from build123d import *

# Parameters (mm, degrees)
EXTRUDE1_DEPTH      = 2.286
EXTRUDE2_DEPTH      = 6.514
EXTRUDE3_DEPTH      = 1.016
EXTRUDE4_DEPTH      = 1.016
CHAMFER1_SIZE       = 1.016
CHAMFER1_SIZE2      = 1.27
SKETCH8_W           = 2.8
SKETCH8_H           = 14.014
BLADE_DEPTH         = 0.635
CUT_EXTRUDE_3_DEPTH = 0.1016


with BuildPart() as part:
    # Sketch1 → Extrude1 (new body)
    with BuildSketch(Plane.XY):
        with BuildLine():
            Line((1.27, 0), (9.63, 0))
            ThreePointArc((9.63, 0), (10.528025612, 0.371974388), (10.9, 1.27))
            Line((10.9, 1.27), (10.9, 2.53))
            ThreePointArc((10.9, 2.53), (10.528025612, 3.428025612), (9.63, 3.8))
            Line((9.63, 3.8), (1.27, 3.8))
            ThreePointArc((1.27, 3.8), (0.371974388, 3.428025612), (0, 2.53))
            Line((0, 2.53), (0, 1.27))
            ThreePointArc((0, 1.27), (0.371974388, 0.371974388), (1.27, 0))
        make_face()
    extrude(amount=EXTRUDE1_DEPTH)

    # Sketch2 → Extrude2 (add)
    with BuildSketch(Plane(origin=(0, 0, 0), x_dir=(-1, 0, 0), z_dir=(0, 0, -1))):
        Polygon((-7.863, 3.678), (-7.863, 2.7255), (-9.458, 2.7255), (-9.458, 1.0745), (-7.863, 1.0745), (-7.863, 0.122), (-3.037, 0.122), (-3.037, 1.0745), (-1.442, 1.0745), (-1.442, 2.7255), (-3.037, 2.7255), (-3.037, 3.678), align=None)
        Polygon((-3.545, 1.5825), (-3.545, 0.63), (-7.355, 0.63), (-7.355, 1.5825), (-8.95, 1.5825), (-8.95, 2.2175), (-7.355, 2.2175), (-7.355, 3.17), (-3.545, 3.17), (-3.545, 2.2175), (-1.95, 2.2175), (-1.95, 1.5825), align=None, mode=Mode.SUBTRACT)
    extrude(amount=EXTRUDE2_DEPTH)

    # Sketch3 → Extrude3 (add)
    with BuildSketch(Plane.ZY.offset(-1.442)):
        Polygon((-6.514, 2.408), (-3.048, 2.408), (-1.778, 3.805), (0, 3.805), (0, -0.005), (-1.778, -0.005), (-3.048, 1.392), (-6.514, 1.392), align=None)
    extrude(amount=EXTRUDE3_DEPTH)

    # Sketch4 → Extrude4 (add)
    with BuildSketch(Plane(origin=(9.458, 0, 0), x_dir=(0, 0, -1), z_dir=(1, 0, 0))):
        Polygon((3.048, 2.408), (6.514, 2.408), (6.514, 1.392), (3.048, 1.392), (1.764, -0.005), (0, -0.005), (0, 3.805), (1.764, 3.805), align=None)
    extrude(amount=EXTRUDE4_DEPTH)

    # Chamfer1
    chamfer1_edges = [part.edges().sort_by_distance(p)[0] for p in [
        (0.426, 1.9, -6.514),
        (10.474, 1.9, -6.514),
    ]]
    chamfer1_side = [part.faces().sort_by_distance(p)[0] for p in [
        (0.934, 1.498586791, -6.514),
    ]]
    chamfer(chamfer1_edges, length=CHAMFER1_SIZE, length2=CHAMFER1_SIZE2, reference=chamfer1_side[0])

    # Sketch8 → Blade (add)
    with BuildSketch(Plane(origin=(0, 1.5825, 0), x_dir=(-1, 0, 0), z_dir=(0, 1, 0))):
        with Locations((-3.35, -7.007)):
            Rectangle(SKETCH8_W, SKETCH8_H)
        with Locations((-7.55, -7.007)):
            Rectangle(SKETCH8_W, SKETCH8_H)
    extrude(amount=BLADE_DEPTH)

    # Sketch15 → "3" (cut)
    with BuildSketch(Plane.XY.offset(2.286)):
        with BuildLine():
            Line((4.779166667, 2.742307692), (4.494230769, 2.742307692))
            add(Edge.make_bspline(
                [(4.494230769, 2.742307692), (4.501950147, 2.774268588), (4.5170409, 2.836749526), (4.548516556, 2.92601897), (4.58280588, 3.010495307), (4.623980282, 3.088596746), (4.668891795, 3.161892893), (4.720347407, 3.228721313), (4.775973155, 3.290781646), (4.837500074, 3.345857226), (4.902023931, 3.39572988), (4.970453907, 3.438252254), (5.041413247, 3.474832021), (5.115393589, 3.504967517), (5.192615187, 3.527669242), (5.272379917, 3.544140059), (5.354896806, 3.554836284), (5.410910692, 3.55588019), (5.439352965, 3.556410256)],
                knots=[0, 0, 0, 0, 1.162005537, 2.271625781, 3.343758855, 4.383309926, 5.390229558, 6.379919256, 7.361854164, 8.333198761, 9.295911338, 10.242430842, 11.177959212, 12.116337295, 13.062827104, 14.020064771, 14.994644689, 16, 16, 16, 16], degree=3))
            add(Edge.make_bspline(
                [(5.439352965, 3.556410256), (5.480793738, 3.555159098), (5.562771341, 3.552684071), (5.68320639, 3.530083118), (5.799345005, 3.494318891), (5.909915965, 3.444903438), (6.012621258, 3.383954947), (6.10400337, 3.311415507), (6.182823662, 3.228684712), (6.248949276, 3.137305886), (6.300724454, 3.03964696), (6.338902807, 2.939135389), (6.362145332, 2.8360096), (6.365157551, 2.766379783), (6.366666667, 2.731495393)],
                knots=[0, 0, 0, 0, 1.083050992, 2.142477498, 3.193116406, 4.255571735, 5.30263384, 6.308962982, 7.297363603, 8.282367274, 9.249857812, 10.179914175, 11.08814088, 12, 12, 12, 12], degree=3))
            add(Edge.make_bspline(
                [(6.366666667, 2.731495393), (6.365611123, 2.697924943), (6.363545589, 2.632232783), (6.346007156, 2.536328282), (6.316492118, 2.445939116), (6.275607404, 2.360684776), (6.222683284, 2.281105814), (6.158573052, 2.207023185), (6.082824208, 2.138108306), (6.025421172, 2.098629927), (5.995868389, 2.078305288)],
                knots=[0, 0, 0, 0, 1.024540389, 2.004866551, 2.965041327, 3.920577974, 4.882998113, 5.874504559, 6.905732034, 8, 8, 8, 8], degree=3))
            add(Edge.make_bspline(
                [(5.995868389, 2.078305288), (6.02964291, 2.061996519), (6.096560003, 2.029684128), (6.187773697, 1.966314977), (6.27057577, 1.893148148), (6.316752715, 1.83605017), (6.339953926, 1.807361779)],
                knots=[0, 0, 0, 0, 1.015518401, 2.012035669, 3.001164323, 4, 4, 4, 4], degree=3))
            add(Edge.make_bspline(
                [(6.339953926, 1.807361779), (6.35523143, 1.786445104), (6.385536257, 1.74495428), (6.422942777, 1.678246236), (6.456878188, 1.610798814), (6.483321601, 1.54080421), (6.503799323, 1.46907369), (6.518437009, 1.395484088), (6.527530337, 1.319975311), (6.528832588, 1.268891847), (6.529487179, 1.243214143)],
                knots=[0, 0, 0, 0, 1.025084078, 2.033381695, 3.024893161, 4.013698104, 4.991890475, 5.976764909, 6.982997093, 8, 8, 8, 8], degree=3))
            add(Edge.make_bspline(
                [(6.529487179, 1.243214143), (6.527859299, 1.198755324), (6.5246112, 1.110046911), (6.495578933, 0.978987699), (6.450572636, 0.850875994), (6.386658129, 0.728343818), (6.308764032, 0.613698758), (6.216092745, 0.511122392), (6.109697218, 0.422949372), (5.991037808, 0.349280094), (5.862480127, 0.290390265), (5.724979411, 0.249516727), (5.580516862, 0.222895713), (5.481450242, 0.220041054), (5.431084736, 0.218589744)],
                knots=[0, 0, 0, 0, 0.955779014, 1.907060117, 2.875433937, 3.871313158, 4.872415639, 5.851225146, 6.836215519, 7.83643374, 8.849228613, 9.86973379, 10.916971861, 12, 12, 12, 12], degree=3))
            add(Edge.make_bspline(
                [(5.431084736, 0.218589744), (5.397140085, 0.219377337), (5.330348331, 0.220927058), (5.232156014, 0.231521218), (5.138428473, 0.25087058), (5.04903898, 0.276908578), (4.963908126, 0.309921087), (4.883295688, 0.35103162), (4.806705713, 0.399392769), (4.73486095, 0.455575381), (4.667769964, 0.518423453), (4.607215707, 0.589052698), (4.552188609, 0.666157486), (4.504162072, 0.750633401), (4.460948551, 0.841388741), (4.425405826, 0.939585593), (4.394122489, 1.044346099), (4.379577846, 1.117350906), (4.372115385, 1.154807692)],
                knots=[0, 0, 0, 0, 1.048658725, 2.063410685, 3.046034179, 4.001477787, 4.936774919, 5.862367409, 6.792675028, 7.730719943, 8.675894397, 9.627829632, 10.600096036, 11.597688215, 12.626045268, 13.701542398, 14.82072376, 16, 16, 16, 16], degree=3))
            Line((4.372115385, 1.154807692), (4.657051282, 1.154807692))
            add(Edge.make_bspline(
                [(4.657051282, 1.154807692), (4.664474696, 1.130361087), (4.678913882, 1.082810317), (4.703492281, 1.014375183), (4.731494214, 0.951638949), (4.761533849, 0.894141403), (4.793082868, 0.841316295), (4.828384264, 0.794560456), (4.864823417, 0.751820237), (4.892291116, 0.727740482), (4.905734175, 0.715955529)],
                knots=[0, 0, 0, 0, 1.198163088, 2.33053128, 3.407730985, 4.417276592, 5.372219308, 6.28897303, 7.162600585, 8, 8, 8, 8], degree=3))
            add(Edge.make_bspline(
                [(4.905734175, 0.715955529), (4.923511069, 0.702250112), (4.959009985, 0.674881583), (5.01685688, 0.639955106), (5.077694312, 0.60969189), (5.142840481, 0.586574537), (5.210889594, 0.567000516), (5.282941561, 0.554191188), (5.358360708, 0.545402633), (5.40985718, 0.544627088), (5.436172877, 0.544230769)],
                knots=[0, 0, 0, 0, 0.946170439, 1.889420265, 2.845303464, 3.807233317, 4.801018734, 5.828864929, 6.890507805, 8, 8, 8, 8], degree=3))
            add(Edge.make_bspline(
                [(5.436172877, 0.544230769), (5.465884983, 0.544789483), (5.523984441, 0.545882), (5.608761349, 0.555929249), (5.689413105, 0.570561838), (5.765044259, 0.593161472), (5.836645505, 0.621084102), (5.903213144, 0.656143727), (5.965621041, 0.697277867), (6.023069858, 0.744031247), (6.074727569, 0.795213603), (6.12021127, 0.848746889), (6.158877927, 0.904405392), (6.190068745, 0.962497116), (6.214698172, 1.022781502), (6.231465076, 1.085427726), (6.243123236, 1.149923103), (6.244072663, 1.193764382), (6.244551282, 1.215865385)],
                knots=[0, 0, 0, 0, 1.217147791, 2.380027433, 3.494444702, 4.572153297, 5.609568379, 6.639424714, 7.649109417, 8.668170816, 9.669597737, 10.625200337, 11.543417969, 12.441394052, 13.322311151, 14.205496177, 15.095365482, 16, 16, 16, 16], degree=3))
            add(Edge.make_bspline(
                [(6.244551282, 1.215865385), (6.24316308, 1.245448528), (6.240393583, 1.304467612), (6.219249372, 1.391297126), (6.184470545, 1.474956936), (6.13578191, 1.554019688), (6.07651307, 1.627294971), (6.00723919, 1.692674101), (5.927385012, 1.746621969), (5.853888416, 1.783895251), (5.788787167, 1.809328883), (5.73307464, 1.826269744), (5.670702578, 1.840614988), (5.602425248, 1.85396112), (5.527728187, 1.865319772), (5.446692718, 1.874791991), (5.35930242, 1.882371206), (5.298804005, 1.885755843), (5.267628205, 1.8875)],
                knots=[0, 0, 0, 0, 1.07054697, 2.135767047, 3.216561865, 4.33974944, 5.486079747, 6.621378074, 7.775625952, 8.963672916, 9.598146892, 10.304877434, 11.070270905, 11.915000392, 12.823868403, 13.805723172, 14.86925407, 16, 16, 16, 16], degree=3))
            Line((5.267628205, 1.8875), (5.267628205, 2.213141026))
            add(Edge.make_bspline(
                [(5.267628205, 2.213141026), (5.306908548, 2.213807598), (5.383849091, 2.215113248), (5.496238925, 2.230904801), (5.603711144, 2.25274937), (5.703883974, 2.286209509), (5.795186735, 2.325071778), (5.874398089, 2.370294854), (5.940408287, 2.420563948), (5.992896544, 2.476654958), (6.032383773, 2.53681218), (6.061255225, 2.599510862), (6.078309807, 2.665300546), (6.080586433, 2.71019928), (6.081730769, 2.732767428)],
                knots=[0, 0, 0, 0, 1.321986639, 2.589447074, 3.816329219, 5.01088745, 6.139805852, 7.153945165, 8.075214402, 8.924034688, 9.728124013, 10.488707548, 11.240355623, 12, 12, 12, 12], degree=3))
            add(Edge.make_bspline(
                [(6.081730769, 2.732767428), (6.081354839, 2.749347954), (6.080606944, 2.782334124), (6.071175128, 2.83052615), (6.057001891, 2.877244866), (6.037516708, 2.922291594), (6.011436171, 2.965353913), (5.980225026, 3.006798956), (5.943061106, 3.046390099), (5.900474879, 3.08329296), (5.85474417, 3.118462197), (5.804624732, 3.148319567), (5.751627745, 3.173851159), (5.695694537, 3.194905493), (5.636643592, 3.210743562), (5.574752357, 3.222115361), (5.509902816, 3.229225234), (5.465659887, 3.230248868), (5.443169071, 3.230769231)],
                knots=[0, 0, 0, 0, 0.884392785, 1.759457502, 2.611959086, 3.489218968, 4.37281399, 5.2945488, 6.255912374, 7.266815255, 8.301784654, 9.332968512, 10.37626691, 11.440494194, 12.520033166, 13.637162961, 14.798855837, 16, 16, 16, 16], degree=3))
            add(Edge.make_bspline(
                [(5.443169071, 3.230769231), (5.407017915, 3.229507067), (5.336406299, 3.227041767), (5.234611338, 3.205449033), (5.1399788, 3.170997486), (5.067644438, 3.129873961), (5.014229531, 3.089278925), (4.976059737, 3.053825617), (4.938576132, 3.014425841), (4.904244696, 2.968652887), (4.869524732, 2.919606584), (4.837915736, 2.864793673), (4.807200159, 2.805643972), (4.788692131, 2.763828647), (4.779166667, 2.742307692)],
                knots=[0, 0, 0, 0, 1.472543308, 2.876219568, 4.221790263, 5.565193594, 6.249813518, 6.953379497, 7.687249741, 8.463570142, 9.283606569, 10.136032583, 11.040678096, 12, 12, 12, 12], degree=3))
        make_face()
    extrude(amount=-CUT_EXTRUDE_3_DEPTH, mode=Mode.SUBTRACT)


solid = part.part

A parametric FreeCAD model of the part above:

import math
import FreeCAD as App
import Part
import Sketcher

V = App.Vector
Q = App.Units.Quantity


def edges_at(feature, points):
    """Names of the edges that pass closest to the given points."""
    edges = feature.Shape.Edges
    near = lambda p: min(range(len(edges)), key=lambda i: edges[i].distToShape(Part.Vertex(*p))[0])
    return sorted({f"Edge{near(p) + 1}" for p in points})

doc = App.newDocument("Part")
params = doc.addObject("Spreadsheet::Sheet", "Params")
for row, (alias, value) in enumerate([
    ("sketch1_radius", "0.05 in"),
    ("pad1_length", "0.09 in"),
    ("sketch2_width", "0.19 in"),
    ("sketch2_width2", "0.15 in"),
    ("sketch2_height", "0.065 in"),
    ("sketch2_height2", "0.025 in"),
    ("pad2_length", "6.514 mm"),
    ("sketch3_width", "0.04 in"),
    ("sketch3_width2", "0.15 in"),
    ("sketch3_height", "0.07 in"),
    ("pad3_length", "0.04 in"),
    ("sketch4_width", "0.15 in"),
    ("sketch4_width2", "0.04 in"),
    ("pad4_length", "0.04 in"),
    ("chamfer_size", "0.04 in"),
    ("chamfer_size2", "0.05 in"),
    ("pad5_length", "0.025 in"),
    ("pocket1_length", "0.004 in"),
], start=1):
    params.set(f"A{row}", alias)
    params.set(f"B{row}", "=" + value)
    params.setAlias(f"B{row}", alias)

body = doc.addObject("PartDesign::Body", "Body")

# Sketch on XY plane
sketch1 = body.newObject("Sketcher::SketchObject", "Sketch")
sketch1.AttachmentSupport = (doc.getObject("XY_Plane"), [""])
sketch1.MapMode = "FlatFace"
sketch1.addGeometry([
    Part.LineSegment(V(1.3, 0, 0), V(9.6, 0, 0)),  # 0
    Part.ArcOfCircle(Part.Circle(V(9.6, 1.3, 0), V(0, 0, 1), 1.3), math.radians(-90), math.radians(0)),  # 1
    Part.LineSegment(V(10.9, 1.3, 0), V(10.9, 2.5, 0)),  # 2
    Part.ArcOfCircle(Part.Circle(V(9.6, 2.5, 0), V(0, 0, 1), 1.3), math.radians(0), math.radians(90)),  # 3
    Part.LineSegment(V(9.6, 3.8, 0), V(1.3, 3.8, 0)),  # 4
    Part.ArcOfCircle(Part.Circle(V(1.3, 2.5, 0), V(0, 0, 1), 1.3), math.radians(90), math.radians(180)),  # 5
    Part.LineSegment(V(0, 2.5, 0), V(0, 1.3, 0)),  # 6
    Part.ArcOfCircle(Part.Circle(V(1.3, 1.3, 0), V(0, 0, 1), 1.3), math.radians(180), math.radians(270)),  # 7
], False)
sketch1.addConstraint([
    Sketcher.Constraint("Tangent", 0, 2, 1, 1),
    Sketcher.Constraint("Tangent", 1, 2, 2, 1),
    Sketcher.Constraint("Tangent", 2, 2, 3, 1),
    Sketcher.Constraint("Tangent", 3, 2, 4, 1),
    Sketcher.Constraint("Tangent", 4, 2, 5, 1),
    Sketcher.Constraint("Tangent", 5, 2, 6, 1),
    Sketcher.Constraint("Tangent", 6, 2, 7, 1),
    Sketcher.Constraint("Tangent", 7, 2, 0, 1),
    Sketcher.Constraint("Horizontal", 0),
    Sketcher.Constraint("Vertical", 2),
    Sketcher.Constraint("Horizontal", 4),
    Sketcher.Constraint("Vertical", 6),
    Sketcher.Constraint("Equal", 1, 3),
    Sketcher.Constraint("Equal", 3, 5),
    Sketcher.Constraint("Equal", 5, 7),
    Sketcher.Constraint("PointOnObject", 0, 2, -1),
    Sketcher.Constraint("PointOnObject", 5, 2, -2),
    Sketcher.Constraint("Radius", 1, Q("0.05 in")),
    Sketcher.Constraint("DistanceX", 0, 1, 0, 2, Q("8.36 mm")),
    Sketcher.Constraint("DistanceY", 2, 1, 2, 2, Q("1.26 mm")),
])
sketch1.setExpression("Constraints[17]", "Params.sketch1_radius")
pad1 = body.newObject("PartDesign::Pad", "Pad")
pad1.Profile = sketch1
pad1.setExpression("Length", "Params.pad1_length")

# Sketch on XY plane
sketch2 = body.newObject("Sketcher::SketchObject", "Sketch001")
sketch2.AttachmentSupport = (doc.getObject("XY_Plane"), [""])
sketch2.MapMode = "FlatFace"
sketch2.addGeometry([
    Part.LineSegment(V(7.9, 3.7, 0), V(7.9, 2.7, 0)),  # 0
    Part.LineSegment(V(7.9, 2.7, 0), V(9.5, 2.7, 0)),  # 1
    Part.LineSegment(V(9.5, 2.7, 0), V(9.5, 1.1, 0)),  # 2
    Part.LineSegment(V(9.5, 1.1, 0), V(7.9, 1.1, 0)),  # 3
    Part.LineSegment(V(7.9, 1.1, 0), V(7.9, 0.1, 0)),  # 4
    Part.LineSegment(V(7.9, 0.1, 0), V(3, 0.1, 0)),  # 5
    Part.LineSegment(V(3, 0.1, 0), V(3, 1.1, 0)),  # 6
    Part.LineSegment(V(3, 1.1, 0), V(1.4, 1.1, 0)),  # 7
    Part.LineSegment(V(1.4, 1.1, 0), V(1.4, 2.7, 0)),  # 8
    Part.LineSegment(V(1.4, 2.7, 0), V(3, 2.7, 0)),  # 9
    Part.LineSegment(V(3, 2.7, 0), V(3, 3.7, 0)),  # 10
    Part.LineSegment(V(3, 3.7, 0), V(7.9, 3.7, 0)),  # 11
    Part.LineSegment(V(1.9, 1.6, 0), V(3.5, 1.6, 0)),  # 12
    Part.LineSegment(V(3.5, 1.6, 0), V(3.5, 0.6, 0)),  # 13
    Part.LineSegment(V(3.5, 0.6, 0), V(7.4, 0.6, 0)),  # 14
    Part.LineSegment(V(7.4, 0.6, 0), V(7.4, 1.6, 0)),  # 15
    Part.LineSegment(V(7.4, 1.6, 0), V(8.9, 1.6, 0)),  # 16
    Part.LineSegment(V(8.9, 1.6, 0), V(8.9, 2.2, 0)),  # 17
    Part.LineSegment(V(8.9, 2.2, 0), V(7.4, 2.2, 0)),  # 18
    Part.LineSegment(V(7.4, 2.2, 0), V(7.4, 3.2, 0)),  # 19
    Part.LineSegment(V(7.4, 3.2, 0), V(3.5, 3.2, 0)),  # 20
    Part.LineSegment(V(3.5, 3.2, 0), V(3.5, 2.2, 0)),  # 21
    Part.LineSegment(V(3.5, 2.2, 0), V(1.9, 2.2, 0)),  # 22
    Part.LineSegment(V(1.9, 2.2, 0), V(1.9, 1.6, 0)),  # 23
], False)
sketch2.addConstraint([
    Sketcher.Constraint("Coincident", 0, 2, 1, 1),
    Sketcher.Constraint("Coincident", 1, 2, 2, 1),
    Sketcher.Constraint("Coincident", 2, 2, 3, 1),
    Sketcher.Constraint("Coincident", 3, 2, 4, 1),
    Sketcher.Constraint("Coincident", 4, 2, 5, 1),
    Sketcher.Constraint("Coincident", 5, 2, 6, 1),
    Sketcher.Constraint("Coincident", 6, 2, 7, 1),
    Sketcher.Constraint("Coincident", 7, 2, 8, 1),
    Sketcher.Constraint("Coincident", 8, 2, 9, 1),
    Sketcher.Constraint("Coincident", 9, 2, 10, 1),
    Sketcher.Constraint("Coincident", 10, 2, 11, 1),
    Sketcher.Constraint("Coincident", 11, 2, 0, 1),
    Sketcher.Constraint("Coincident", 12, 2, 13, 1),
    Sketcher.Constraint("Coincident", 13, 2, 14, 1),
    Sketcher.Constraint("Coincident", 14, 2, 15, 1),
    Sketcher.Constraint("Coincident", 15, 2, 16, 1),
    Sketcher.Constraint("Coincident", 16, 2, 17, 1),
    Sketcher.Constraint("Coincident", 17, 2, 18, 1),
    Sketcher.Constraint("Coincident", 18, 2, 19, 1),
    Sketcher.Constraint("Coincident", 19, 2, 20, 1),
    Sketcher.Constraint("Coincident", 20, 2, 21, 1),
    Sketcher.Constraint("Coincident", 21, 2, 22, 1),
    Sketcher.Constraint("Coincident", 22, 2, 23, 1),
    Sketcher.Constraint("Coincident", 23, 2, 12, 1),
    Sketcher.Constraint("Vertical", 0),
    Sketcher.Constraint("Horizontal", 1),
    Sketcher.Constraint("Vertical", 2),
    Sketcher.Constraint("Horizontal", 3),
    Sketcher.Constraint("Vertical", 4),
    Sketcher.Constraint("Horizontal", 5),
    Sketcher.Constraint("Vertical", 6),
    Sketcher.Constraint("Horizontal", 7),
    Sketcher.Constraint("Vertical", 8),
    Sketcher.Constraint("Horizontal", 9),
    Sketcher.Constraint("Vertical", 10),
    Sketcher.Constraint("Horizontal", 11),
    Sketcher.Constraint("Horizontal", 12),
    Sketcher.Constraint("Vertical", 13),
    Sketcher.Constraint("Horizontal", 14),
    Sketcher.Constraint("Vertical", 15),
    Sketcher.Constraint("Horizontal", 16),
    Sketcher.Constraint("Vertical", 17),
    Sketcher.Constraint("Horizontal", 18),
    Sketcher.Constraint("Vertical", 19),
    Sketcher.Constraint("Horizontal", 20),
    Sketcher.Constraint("Vertical", 21),
    Sketcher.Constraint("Horizontal", 22),
    Sketcher.Constraint("Vertical", 23),
    Sketcher.Constraint("Horizontal", 3, 2, 6, 2),
    Sketcher.Constraint("Horizontal", 1, 2, 8, 2),
    Sketcher.Constraint("Horizontal", 12, 2, 15, 2),
    Sketcher.Constraint("Horizontal", 18, 2, 21, 2),
    Sketcher.Constraint("Vertical", 0, 2, 3, 2),
    Sketcher.Constraint("Vertical", 6, 2, 9, 2),
    Sketcher.Constraint("Vertical", 15, 2, 18, 2),
    Sketcher.Constraint("Vertical", 13, 2, 20, 2),
    Sketcher.Constraint("Equal", 3, 7),
    Sketcher.Constraint("Equal", 9, 12),
    Sketcher.Constraint("Equal", 12, 16),
    Sketcher.Constraint("Equal", 0, 4),
    Sketcher.Constraint("Equal", 10, 13),
    Sketcher.Constraint("Equal", 15, 19),
    Sketcher.Constraint("DistanceX", 5, 2, 5, 1, Q("0.19 in")),
    Sketcher.Constraint("DistanceX", 14, 1, 14, 2, Q("0.15 in")),
    Sketcher.Constraint("DistanceY", 2, 2, 2, 1, Q("0.065 in")),
    Sketcher.Constraint("DistanceY", 17, 1, 17, 2, Q("0.025 in")),
    Sketcher.Constraint("DistanceY", 5, 2, 10, 2, Q("0.14 in")),
    Sketcher.Constraint("DistanceX", 6, 2, 12, 2, Q("0.02 in")),
    Sketcher.Constraint("DistanceY", 6, 2, 12, 2, Q("0.02 in")),
    Sketcher.Constraint("DistanceX", 1, 1, 1, 2, Q("1.595 mm")),
    Sketcher.Constraint("DistanceX", -1, 1, 0, 2, Q("7.863 mm")),
    Sketcher.Constraint("DistanceY", -1, 1, 0, 2, Q("2.7255 mm")),
])
sketch2.setExpression("Constraints[62]", "Params.sketch2_width")
sketch2.setExpression("Constraints[63]", "Params.sketch2_width2")
sketch2.setExpression("Constraints[64]", "Params.sketch2_height")
sketch2.setExpression("Constraints[65]", "Params.sketch2_height2")
pad2 = body.newObject("PartDesign::Pad", "Pad001")
pad2.Profile = sketch2
pad2.setExpression("Length", "Params.pad2_length")
pad2.Reversed = True

# Sketch on YZ plane
sketch3 = body.newObject("Sketcher::SketchObject", "Sketch002")
sketch3.AttachmentSupport = (doc.getObject("YZ_Plane"), [""])
sketch3.MapMode = "FlatFace"
sketch3.AttachmentOffset = App.Placement(V(0, 0, 1.442), App.Rotation())
sketch3.addGeometry([
    Part.LineSegment(V(2.4, -3, 0), V(2.4, -6.5, 0)),  # 0
    Part.LineSegment(V(2.4, -6.5, 0), V(1.4, -6.5, 0)),  # 1
    Part.LineSegment(V(1.4, -6.5, 0), V(1.4, -3, 0)),  # 2
    Part.LineSegment(V(1.4, -3, 0), V(0, -1.8, 0)),  # 3
    Part.LineSegment(V(0, -1.8, 0), V(0, 0, 0)),  # 4
    Part.LineSegment(V(0, 0, 0), V(3.8, 0, 0)),  # 5
    Part.LineSegment(V(3.8, 0, 0), V(3.8, -1.8, 0)),  # 6
    Part.LineSegment(V(3.8, -1.8, 0), V(2.4, -3, 0)),  # 7
], False)
sketch3.addConstraint([
    Sketcher.Constraint("Coincident", 0, 2, 1, 1),
    Sketcher.Constraint("Coincident", 1, 2, 2, 1),
    Sketcher.Constraint("Coincident", 2, 2, 3, 1),
    Sketcher.Constraint("Coincident", 3, 2, 4, 1),
    Sketcher.Constraint("Coincident", 4, 2, 5, 1),
    Sketcher.Constraint("Coincident", 5, 2, 6, 1),
    Sketcher.Constraint("Coincident", 6, 2, 7, 1),
    Sketcher.Constraint("Coincident", 7, 2, 0, 1),
    Sketcher.Constraint("Vertical", 0),
    Sketcher.Constraint("Horizontal", 1),
    Sketcher.Constraint("Vertical", 2),
    Sketcher.Constraint("Vertical", 4),
    Sketcher.Constraint("Horizontal", 5),
    Sketcher.Constraint("Vertical", 6),
    Sketcher.Constraint("PointOnObject", 4, 2, -1),
    Sketcher.Constraint("Horizontal", 3, 2, 6, 2),
    Sketcher.Constraint("Horizontal", 2, 2, 7, 2),
    Sketcher.Constraint("Equal", 3, 7),
    Sketcher.Constraint("DistanceX", 1, 2, 1, 1, Q("0.04 in")),
    Sketcher.Constraint("DistanceX", 5, 1, 5, 2, Q("0.15 in")),
    Sketcher.Constraint("DistanceY", 4, 1, 4, 2, Q("0.07 in")),
    Sketcher.Constraint("DistanceY", 2, 2, -1, 1, Q("0.12 in")),
    Sketcher.Constraint("DistanceY", 0, 2, 0, 1, Q("3.466 mm")),
    Sketcher.Constraint("DistanceX", -1, 1, 0, 2, Q("2.408 mm")),
])
sketch3.setExpression("Constraints[18]", "Params.sketch3_width")
sketch3.setExpression("Constraints[19]", "Params.sketch3_width2")
sketch3.setExpression("Constraints[20]", "Params.sketch3_height")
pad3 = body.newObject("PartDesign::Pad", "Pad002")
pad3.Profile = sketch3
pad3.setExpression("Length", "Params.pad3_length")
pad3.Reversed = True

# Sketch on YZ plane
sketch4 = body.newObject("Sketcher::SketchObject", "Sketch003")
sketch4.AttachmentSupport = (doc.getObject("YZ_Plane"), [""])
sketch4.MapMode = "FlatFace"
sketch4.AttachmentOffset = App.Placement(V(0, 0, 9.458), App.Rotation())
sketch4.addGeometry([
    Part.LineSegment(V(2.4, -6.5, 0), V(2.4, -3, 0)),  # 0
    Part.LineSegment(V(2.4, -3, 0), V(3.8, -1.8, 0)),  # 1
    Part.LineSegment(V(3.8, -1.8, 0), V(3.8, 0, 0)),  # 2
    Part.LineSegment(V(3.8, 0, 0), V(0, 0, 0)),  # 3
    Part.LineSegment(V(0, 0, 0), V(0, -1.8, 0)),  # 4
    Part.LineSegment(V(0, -1.8, 0), V(1.4, -3, 0)),  # 5
    Part.LineSegment(V(1.4, -3, 0), V(1.4, -6.5, 0)),  # 6
    Part.LineSegment(V(1.4, -6.5, 0), V(2.4, -6.5, 0)),  # 7
], False)
sketch4.addConstraint([
    Sketcher.Constraint("Coincident", 0, 2, 1, 1),
    Sketcher.Constraint("Coincident", 1, 2, 2, 1),
    Sketcher.Constraint("Coincident", 2, 2, 3, 1),
    Sketcher.Constraint("Coincident", 3, 2, 4, 1),
    Sketcher.Constraint("Coincident", 4, 2, 5, 1),
    Sketcher.Constraint("Coincident", 5, 2, 6, 1),
    Sketcher.Constraint("Coincident", 6, 2, 7, 1),
    Sketcher.Constraint("Coincident", 7, 2, 0, 1),
    Sketcher.Constraint("Vertical", 0),
    Sketcher.Constraint("Vertical", 2),
    Sketcher.Constraint("Horizontal", 3),
    Sketcher.Constraint("Vertical", 4),
    Sketcher.Constraint("Vertical", 6),
    Sketcher.Constraint("Horizontal", 7),
    Sketcher.Constraint("PointOnObject", 2, 2, -1),
    Sketcher.Constraint("Horizontal", 1, 2, 4, 2),
    Sketcher.Constraint("Horizontal", 0, 2, 5, 2),
    Sketcher.Constraint("Equal", 1, 5),
    Sketcher.Constraint("DistanceX", 3, 2, 3, 1, Q("0.15 in")),
    Sketcher.Constraint("DistanceX", 7, 1, 7, 2, Q("0.04 in")),
    Sketcher.Constraint("DistanceY", 0, 2, -1, 1, Q("0.12 in")),
    Sketcher.Constraint("DistanceY", 0, 1, 0, 2, Q("3.466 mm")),
    Sketcher.Constraint("DistanceY", 2, 1, 2, 2, Q("1.764 mm")),
    Sketcher.Constraint("DistanceX", -1, 1, 0, 2, Q("2.408 mm")),
])
sketch4.setExpression("Constraints[18]", "Params.sketch4_width")
sketch4.setExpression("Constraints[19]", "Params.sketch4_width2")
pad4 = body.newObject("PartDesign::Pad", "Pad003")
pad4.Profile = sketch4
pad4.setExpression("Length", "Params.pad4_length")
doc.recompute()

chamfer = body.newObject("PartDesign::Chamfer", "Chamfer")
chamfer.Base = (pad4, edges_at(pad4, [(0.426, 1.9, -6.514), (10.474, 1.9, -6.514)]))
chamfer.ChamferType = "Two distances"
chamfer.setExpression("Size", "Params.chamfer_size")
chamfer.setExpression("Size2", "Params.chamfer_size2")
chamfer.FlipDirection = True

# Sketch on XZ plane
sketch5 = body.newObject("Sketcher::SketchObject", "Sketch004")
sketch5.AttachmentSupport = (doc.getObject("XZ_Plane"), [""])
sketch5.MapMode = "FlatFace"
sketch5.AttachmentOffset = App.Placement(V(0, 0, -1.5825), App.Rotation())
sketch5.addGeometry([
    Part.LineSegment(V(4.8, 0, 0), V(4.8, -14, 0)),  # 0
    Part.LineSegment(V(4.8, -14, 0), V(1.9, -14, 0)),  # 1
    Part.LineSegment(V(1.9, -14, 0), V(1.9, 0, 0)),  # 2
    Part.LineSegment(V(1.9, 0, 0), V(4.8, 0, 0)),  # 3
    Part.LineSegment(V(8.9, 0, 0), V(8.9, -14, 0)),  # 4
    Part.LineSegment(V(8.9, -14, 0), V(6.2, -14, 0)),  # 5
    Part.LineSegment(V(6.2, -14, 0), V(6.2, 0, 0)),  # 6
    Part.LineSegment(V(6.2, 0, 0), V(8.9, 0, 0)),  # 7
], False)
sketch5.addConstraint([
    Sketcher.Constraint("Coincident", 0, 2, 1, 1),
    Sketcher.Constraint("Coincident", 1, 2, 2, 1),
    Sketcher.Constraint("Coincident", 2, 2, 3, 1),
    Sketcher.Constraint("Coincident", 3, 2, 0, 1),
    Sketcher.Constraint("Coincident", 4, 2, 5, 1),
    Sketcher.Constraint("Coincident", 5, 2, 6, 1),
    Sketcher.Constraint("Coincident", 6, 2, 7, 1),
    Sketcher.Constraint("Coincident", 7, 2, 4, 1),
    Sketcher.Constraint("Vertical", 0),
    Sketcher.Constraint("Horizontal", 1),
    Sketcher.Constraint("Vertical", 2),
    Sketcher.Constraint("Horizontal", 3),
    Sketcher.Constraint("Vertical", 4),
    Sketcher.Constraint("Horizontal", 5),
    Sketcher.Constraint("Vertical", 6),
    Sketcher.Constraint("Horizontal", 7),
    Sketcher.Constraint("PointOnObject", 2, 2, -1),
    Sketcher.Constraint("PointOnObject", 6, 2, -1),
    Sketcher.Constraint("Horizontal", 1, 2, 4, 2),
    Sketcher.Constraint("Equal", 3, 5),
    Sketcher.Constraint("DistanceX", 1, 2, 1, 1, Q("2.8 mm")),
    Sketcher.Constraint("DistanceY", 0, 2, 0, 1, Q("14.014 mm")),
    Sketcher.Constraint("DistanceX", -1, 1, 0, 2, Q("4.75 mm")),
    Sketcher.Constraint("DistanceX", -1, 1, 4, 2, Q("8.95 mm")),
])
pad5 = body.newObject("PartDesign::Pad", "Pad004")
pad5.Profile = sketch5
pad5.setExpression("Length", "Params.pad5_length")
pad5.Reversed = True

# Sketch on XY plane
sketch6 = body.newObject("Sketcher::SketchObject", "Sketch005")
sketch6.AttachmentSupport = (doc.getObject("XY_Plane"), [""])
sketch6.MapMode = "FlatFace"
sketch6.AttachmentOffset = App.Placement(V(0, 0, 0.09 * 25.4), App.Rotation())
sketch6.addGeometry([
    Part.LineSegment(V(4.494231, 2.742308, 0), V(4.779167, 2.742308, 0)),  # 0
    Part.BSplineCurve([V(5.443169, 3.230769, 0), V(5.407018, 3.229507, 0), V(5.336406, 3.227042, 0), V(5.234611, 3.205449, 0), V(5.139979, 3.170997, 0), V(5.067644, 3.129874, 0), V(5.01423, 3.089279, 0), V(4.97606, 3.053826, 0), V(4.938576, 3.014426, 0), V(4.904245, 2.968653, 0), V(4.869525, 2.919607, 0), V(4.837916, 2.864794, 0), V(4.8072, 2.805644, 0), V(4.788692, 2.763829, 0), V(4.779167, 2.742308, 0)], [4, 1, 1, 1, 1, 1, 1, 1, 1, 1, 1, 1, 4], [0, 1.472543308, 2.876219568, 4.221790263, 5.565193594, 6.249813518, 6.953379497, 7.687249741, 8.463570142, 9.283606569, 10.136032583, 11.040678096, 12], False, 3, [1, 1, 1, 1, 1, 1, 1, 1, 1, 1, 1, 1, 1, 1, 1], False),  # 1
    Part.BSplineCurve([V(6.081731, 2.732767, 0), V(6.081355, 2.749348, 0), V(6.080607, 2.782334, 0), V(6.071175, 2.830526, 0), V(6.057002, 2.877245, 0), V(6.037517, 2.922292, 0), V(6.011436, 2.965354, 0), V(5.980225, 3.006799, 0), V(5.943061, 3.04639, 0), V(5.900475, 3.083293, 0), V(5.854744, 3.118462, 0), V(5.804625, 3.14832, 0), V(5.751628, 3.173851, 0), V(5.695695, 3.194905, 0), V(5.636644, 3.210744, 0), V(5.574752, 3.222115, 0), V(5.509903, 3.229225, 0), V(5.46566, 3.230249, 0), V(5.443169, 3.230769, 0)], [4, 1, 1, 1, 1, 1, 1, 1, 1, 1, 1, 1, 1, 1, 1, 1, 4], [0, 0.884392785, 1.759457502, 2.611959086, 3.489218968, 4.37281399, 5.2945488, 6.255912374, 7.266815255, 8.301784654, 9.332968512, 10.37626691, 11.440494194, 12.520033166, 13.637162961, 14.798855837, 16], False, 3, [1, 1, 1, 1, 1, 1, 1, 1, 1, 1, 1, 1, 1, 1, 1, 1, 1, 1, 1], False),  # 2
    Part.BSplineCurve([V(5.267628, 2.213141, 0), V(5.306909, 2.213808, 0), V(5.383849, 2.215113, 0), V(5.496239, 2.230905, 0), V(5.603711, 2.252749, 0), V(5.703884, 2.28621, 0), V(5.795187, 2.325072, 0), V(5.874398, 2.370295, 0), V(5.940408, 2.420564, 0), V(5.992897, 2.476655, 0), V(6.032384, 2.536812, 0), V(6.061255, 2.599511, 0), V(6.07831, 2.665301, 0), V(6.080586, 2.710199, 0), V(6.081731, 2.732767, 0)], [4, 1, 1, 1, 1, 1, 1, 1, 1, 1, 1, 1, 4], [0, 1.321986639, 2.589447074, 3.816329219, 5.01088745, 6.139805852, 7.153945165, 8.075214402, 8.924034688, 9.728124013, 10.488707548, 11.240355623, 12], False, 3, [1, 1, 1, 1, 1, 1, 1, 1, 1, 1, 1, 1, 1, 1, 1], False),  # 3
    Part.LineSegment(V(5.267628, 2.213141, 0), V(5.267628, 1.8875, 0)),  # 4
    Part.BSplineCurve([V(6.244551, 1.215865, 0), V(6.243163, 1.245449, 0), V(6.240394, 1.304468, 0), V(6.219249, 1.391297, 0), V(6.184471, 1.474957, 0), V(6.135782, 1.55402, 0), V(6.076513, 1.627295, 0), V(6.007239, 1.692674, 0), V(5.927385, 1.746622, 0), V(5.853888, 1.783895, 0), V(5.788787, 1.809329, 0), V(5.733075, 1.82627, 0), V(5.670703, 1.840615, 0), V(5.602425, 1.853961, 0), V(5.527728, 1.86532, 0), V(5.446693, 1.874792, 0), V(5.359302, 1.882371, 0), V(5.298804, 1.885756, 0), V(5.267628, 1.8875, 0)], [4, 1, 1, 1, 1, 1, 1, 1, 1, 1, 1, 1, 1, 1, 1, 1, 4], [0, 1.07054697, 2.135767047, 3.216561865, 4.33974944, 5.486079747, 6.621378074, 7.775625952, 8.963672916, 9.598146892, 10.304877434, 11.070270905, 11.915000392, 12.823868403, 13.805723172, 14.86925407, 16], False, 3, [1, 1, 1, 1, 1, 1, 1, 1, 1, 1, 1, 1, 1, 1, 1, 1, 1, 1, 1], False),  # 5
    Part.BSplineCurve([V(5.436173, 0.544231, 0), V(5.465885, 0.544789, 0), V(5.523984, 0.545882, 0), V(5.608761, 0.555929, 0), V(5.689413, 0.570562, 0), V(5.765044, 0.593161, 0), V(5.836646, 0.621084, 0), V(5.903213, 0.656144, 0), V(5.965621, 0.697278, 0), V(6.02307, 0.744031, 0), V(6.074728, 0.795214, 0), V(6.120211, 0.848747, 0), V(6.158878, 0.904405, 0), V(6.190069, 0.962497, 0), V(6.214698, 1.022782, 0), V(6.231465, 1.085428, 0), V(6.243123, 1.149923, 0), V(6.244073, 1.193764, 0), V(6.244551, 1.215865, 0)], [4, 1, 1, 1, 1, 1, 1, 1, 1, 1, 1, 1, 1, 1, 1, 1, 4], [0, 1.217147791, 2.380027433, 3.494444702, 4.572153297, 5.609568379, 6.639424714, 7.649109417, 8.668170816, 9.669597737, 10.625200337, 11.543417969, 12.441394052, 13.322311151, 14.205496177, 15.095365482, 16], False, 3, [1, 1, 1, 1, 1, 1, 1, 1, 1, 1, 1, 1, 1, 1, 1, 1, 1, 1, 1], False),  # 6
    Part.BSplineCurve([V(4.905734, 0.715956, 0), V(4.923511, 0.70225, 0), V(4.95901, 0.674882, 0), V(5.016857, 0.639955, 0), V(5.077694, 0.609692, 0), V(5.14284, 0.586575, 0), V(5.21089, 0.567001, 0), V(5.282942, 0.554191, 0), V(5.358361, 0.545403, 0), V(5.409857, 0.544627, 0), V(5.436173, 0.544231, 0)], [4, 1, 1, 1, 1, 1, 1, 1, 4], [0, 0.946170439, 1.889420265, 2.845303464, 3.807233317, 4.801018734, 5.828864929, 6.890507805, 8], False, 3, [1, 1, 1, 1, 1, 1, 1, 1, 1, 1, 1], False),  # 7
    Part.BSplineCurve([V(4.657051, 1.154808, 0), V(4.664475, 1.130361, 0), V(4.678914, 1.08281, 0), V(4.703492, 1.014375, 0), V(4.731494, 0.951639, 0), V(4.761534, 0.894141, 0), V(4.793083, 0.841316, 0), V(4.828384, 0.79456, 0), V(4.864823, 0.75182, 0), V(4.892291, 0.72774, 0), V(4.905734, 0.715956, 0)], [4, 1, 1, 1, 1, 1, 1, 1, 4], [0, 1.198163088, 2.33053128, 3.407730985, 4.417276592, 5.372219308, 6.28897303, 7.162600585, 8], False, 3, [1, 1, 1, 1, 1, 1, 1, 1, 1, 1, 1], False),  # 8
    Part.LineSegment(V(4.657051, 1.154808, 0), V(4.372115, 1.154808, 0)),  # 9
    Part.BSplineCurve([V(5.431085, 0.21859, 0), V(5.39714, 0.219377, 0), V(5.330348, 0.220927, 0), V(5.232156, 0.231521, 0), V(5.138428, 0.250871, 0), V(5.049039, 0.276909, 0), V(4.963908, 0.309921, 0), V(4.883296, 0.351032, 0), V(4.806706, 0.399393, 0), V(4.734861, 0.455575, 0), V(4.66777, 0.518423, 0), V(4.607216, 0.589053, 0), V(4.552189, 0.666157, 0), V(4.504162, 0.750633, 0), V(4.460949, 0.841389, 0), V(4.425406, 0.939586, 0), V(4.394122, 1.044346, 0), V(4.379578, 1.117351, 0), V(4.372115, 1.154808, 0)], [4, 1, 1, 1, 1, 1, 1, 1, 1, 1, 1, 1, 1, 1, 1, 1, 4], [0, 1.048658725, 2.063410685, 3.046034179, 4.001477787, 4.936774919, 5.862367409, 6.792675028, 7.730719943, 8.675894397, 9.627829632, 10.600096036, 11.597688215, 12.626045268, 13.701542398, 14.82072376, 16], False, 3, [1, 1, 1, 1, 1, 1, 1, 1, 1, 1, 1, 1, 1, 1, 1, 1, 1, 1, 1], False),  # 10
    Part.BSplineCurve([V(6.529487, 1.243214, 0), V(6.527859, 1.198755, 0), V(6.524611, 1.110047, 0), V(6.495579, 0.978988, 0), V(6.450573, 0.850876, 0), V(6.386658, 0.728344, 0), V(6.308764, 0.613699, 0), V(6.216093, 0.511122, 0), V(6.109697, 0.422949, 0), V(5.991038, 0.34928, 0), V(5.86248, 0.29039, 0), V(5.724979, 0.249517, 0), V(5.580517, 0.222896, 0), V(5.48145, 0.220041, 0), V(5.431085, 0.21859, 0)], [4, 1, 1, 1, 1, 1, 1, 1, 1, 1, 1, 1, 4], [0, 0.955779014, 1.907060117, 2.875433937, 3.871313158, 4.872415639, 5.851225146, 6.836215519, 7.83643374, 8.849228613, 9.86973379, 10.916971861, 12], False, 3, [1, 1, 1, 1, 1, 1, 1, 1, 1, 1, 1, 1, 1, 1, 1], False),  # 11
    Part.BSplineCurve([V(6.339954, 1.807362, 0), V(6.355231, 1.786445, 0), V(6.385536, 1.744954, 0), V(6.422943, 1.678246, 0), V(6.456878, 1.610799, 0), V(6.483322, 1.540804, 0), V(6.503799, 1.469074, 0), V(6.518437, 1.395484, 0), V(6.52753, 1.319975, 0), V(6.528833, 1.268892, 0), V(6.529487, 1.243214, 0)], [4, 1, 1, 1, 1, 1, 1, 1, 4], [0, 1.025084078, 2.033381695, 3.024893161, 4.013698104, 4.991890475, 5.976764909, 6.982997093, 8], False, 3, [1, 1, 1, 1, 1, 1, 1, 1, 1, 1, 1], False),  # 12
    Part.BSplineCurve([V(5.995868, 2.078305, 0), V(6.029643, 2.061997, 0), V(6.09656, 2.029684, 0), V(6.187774, 1.966315, 0), V(6.270576, 1.893148, 0), V(6.316753, 1.83605, 0), V(6.339954, 1.807362, 0)], [4, 1, 1, 1, 4], [0, 1.015518401, 2.012035669, 3.001164323, 4], False, 3, [1, 1, 1, 1, 1, 1, 1], False),  # 13
    Part.BSplineCurve([V(6.366667, 2.731495, 0), V(6.365611, 2.697925, 0), V(6.363546, 2.632233, 0), V(6.346007, 2.536328, 0), V(6.316492, 2.445939, 0), V(6.275607, 2.360685, 0), V(6.222683, 2.281106, 0), V(6.158573, 2.207023, 0), V(6.082824, 2.138108, 0), V(6.025421, 2.09863, 0), V(5.995868, 2.078305, 0)], [4, 1, 1, 1, 1, 1, 1, 1, 4], [0, 1.024540389, 2.004866551, 2.965041327, 3.920577974, 4.882998113, 5.874504559, 6.905732034, 8], False, 3, [1, 1, 1, 1, 1, 1, 1, 1, 1, 1, 1], False),  # 14
    Part.BSplineCurve([V(5.439353, 3.55641, 0), V(5.480794, 3.555159, 0), V(5.562771, 3.552684, 0), V(5.683206, 3.530083, 0), V(5.799345, 3.494319, 0), V(5.909916, 3.444903, 0), V(6.012621, 3.383955, 0), V(6.104003, 3.311416, 0), V(6.182824, 3.228685, 0), V(6.248949, 3.137306, 0), V(6.300724, 3.039647, 0), V(6.338903, 2.939135, 0), V(6.362145, 2.83601, 0), V(6.365158, 2.76638, 0), V(6.366667, 2.731495, 0)], [4, 1, 1, 1, 1, 1, 1, 1, 1, 1, 1, 1, 4], [0, 1.083050992, 2.142477498, 3.193116406, 4.255571735, 5.30263384, 6.308962982, 7.297363603, 8.282367274, 9.249857812, 10.179914175, 11.08814088, 12], False, 3, [1, 1, 1, 1, 1, 1, 1, 1, 1, 1, 1, 1, 1, 1, 1], False),  # 15
    Part.BSplineCurve([V(4.494231, 2.742308, 0), V(4.50195, 2.774269, 0), V(4.517041, 2.83675, 0), V(4.548517, 2.926019, 0), V(4.582806, 3.010495, 0), V(4.62398, 3.088597, 0), V(4.668892, 3.161893, 0), V(4.720347, 3.228721, 0), V(4.775973, 3.290782, 0), V(4.8375, 3.345857, 0), V(4.902024, 3.39573, 0), V(4.970454, 3.438252, 0), V(5.041413, 3.474832, 0), V(5.115394, 3.504968, 0), V(5.192615, 3.527669, 0), V(5.27238, 3.54414, 0), V(5.354897, 3.554836, 0), V(5.410911, 3.55588, 0), V(5.439353, 3.55641, 0)], [4, 1, 1, 1, 1, 1, 1, 1, 1, 1, 1, 1, 1, 1, 1, 1, 4], [0, 1.162005537, 2.271625781, 3.343758855, 4.383309926, 5.390229558, 6.379919256, 7.361854164, 8.333198761, 9.295911338, 10.242430842, 11.177959212, 12.116337295, 13.062827104, 14.020064771, 14.994644689, 16], False, 3, [1, 1, 1, 1, 1, 1, 1, 1, 1, 1, 1, 1, 1, 1, 1, 1, 1, 1, 1], False),  # 16
], False)
sketch6.addConstraint([
    Sketcher.Constraint("Block", 1),
    Sketcher.Constraint("Block", 2),
    Sketcher.Constraint("Block", 3),
    Sketcher.Constraint("Block", 5),
    Sketcher.Constraint("Block", 6),
    Sketcher.Constraint("Block", 7),
    Sketcher.Constraint("Block", 8),
    Sketcher.Constraint("Block", 10),
    Sketcher.Constraint("Block", 11),
    Sketcher.Constraint("Block", 12),
    Sketcher.Constraint("Block", 13),
    Sketcher.Constraint("Block", 14),
    Sketcher.Constraint("Block", 15),
    Sketcher.Constraint("Block", 16),
    Sketcher.Constraint("Coincident", 0, 2, 1, 2),
    Sketcher.Constraint("Coincident", 3, 1, 4, 1),
    Sketcher.Constraint("Coincident", 4, 2, 5, 2),
    Sketcher.Constraint("Coincident", 8, 1, 9, 1),
    Sketcher.Constraint("Coincident", 9, 2, 10, 2),
    Sketcher.Constraint("Coincident", 16, 1, 0, 1),
])
pocket1 = body.newObject("PartDesign::Pocket", "Pocket")
pocket1.Profile = sketch6
pocket1.setExpression("Length", "Params.pocket1_length")

doc.recompute()
